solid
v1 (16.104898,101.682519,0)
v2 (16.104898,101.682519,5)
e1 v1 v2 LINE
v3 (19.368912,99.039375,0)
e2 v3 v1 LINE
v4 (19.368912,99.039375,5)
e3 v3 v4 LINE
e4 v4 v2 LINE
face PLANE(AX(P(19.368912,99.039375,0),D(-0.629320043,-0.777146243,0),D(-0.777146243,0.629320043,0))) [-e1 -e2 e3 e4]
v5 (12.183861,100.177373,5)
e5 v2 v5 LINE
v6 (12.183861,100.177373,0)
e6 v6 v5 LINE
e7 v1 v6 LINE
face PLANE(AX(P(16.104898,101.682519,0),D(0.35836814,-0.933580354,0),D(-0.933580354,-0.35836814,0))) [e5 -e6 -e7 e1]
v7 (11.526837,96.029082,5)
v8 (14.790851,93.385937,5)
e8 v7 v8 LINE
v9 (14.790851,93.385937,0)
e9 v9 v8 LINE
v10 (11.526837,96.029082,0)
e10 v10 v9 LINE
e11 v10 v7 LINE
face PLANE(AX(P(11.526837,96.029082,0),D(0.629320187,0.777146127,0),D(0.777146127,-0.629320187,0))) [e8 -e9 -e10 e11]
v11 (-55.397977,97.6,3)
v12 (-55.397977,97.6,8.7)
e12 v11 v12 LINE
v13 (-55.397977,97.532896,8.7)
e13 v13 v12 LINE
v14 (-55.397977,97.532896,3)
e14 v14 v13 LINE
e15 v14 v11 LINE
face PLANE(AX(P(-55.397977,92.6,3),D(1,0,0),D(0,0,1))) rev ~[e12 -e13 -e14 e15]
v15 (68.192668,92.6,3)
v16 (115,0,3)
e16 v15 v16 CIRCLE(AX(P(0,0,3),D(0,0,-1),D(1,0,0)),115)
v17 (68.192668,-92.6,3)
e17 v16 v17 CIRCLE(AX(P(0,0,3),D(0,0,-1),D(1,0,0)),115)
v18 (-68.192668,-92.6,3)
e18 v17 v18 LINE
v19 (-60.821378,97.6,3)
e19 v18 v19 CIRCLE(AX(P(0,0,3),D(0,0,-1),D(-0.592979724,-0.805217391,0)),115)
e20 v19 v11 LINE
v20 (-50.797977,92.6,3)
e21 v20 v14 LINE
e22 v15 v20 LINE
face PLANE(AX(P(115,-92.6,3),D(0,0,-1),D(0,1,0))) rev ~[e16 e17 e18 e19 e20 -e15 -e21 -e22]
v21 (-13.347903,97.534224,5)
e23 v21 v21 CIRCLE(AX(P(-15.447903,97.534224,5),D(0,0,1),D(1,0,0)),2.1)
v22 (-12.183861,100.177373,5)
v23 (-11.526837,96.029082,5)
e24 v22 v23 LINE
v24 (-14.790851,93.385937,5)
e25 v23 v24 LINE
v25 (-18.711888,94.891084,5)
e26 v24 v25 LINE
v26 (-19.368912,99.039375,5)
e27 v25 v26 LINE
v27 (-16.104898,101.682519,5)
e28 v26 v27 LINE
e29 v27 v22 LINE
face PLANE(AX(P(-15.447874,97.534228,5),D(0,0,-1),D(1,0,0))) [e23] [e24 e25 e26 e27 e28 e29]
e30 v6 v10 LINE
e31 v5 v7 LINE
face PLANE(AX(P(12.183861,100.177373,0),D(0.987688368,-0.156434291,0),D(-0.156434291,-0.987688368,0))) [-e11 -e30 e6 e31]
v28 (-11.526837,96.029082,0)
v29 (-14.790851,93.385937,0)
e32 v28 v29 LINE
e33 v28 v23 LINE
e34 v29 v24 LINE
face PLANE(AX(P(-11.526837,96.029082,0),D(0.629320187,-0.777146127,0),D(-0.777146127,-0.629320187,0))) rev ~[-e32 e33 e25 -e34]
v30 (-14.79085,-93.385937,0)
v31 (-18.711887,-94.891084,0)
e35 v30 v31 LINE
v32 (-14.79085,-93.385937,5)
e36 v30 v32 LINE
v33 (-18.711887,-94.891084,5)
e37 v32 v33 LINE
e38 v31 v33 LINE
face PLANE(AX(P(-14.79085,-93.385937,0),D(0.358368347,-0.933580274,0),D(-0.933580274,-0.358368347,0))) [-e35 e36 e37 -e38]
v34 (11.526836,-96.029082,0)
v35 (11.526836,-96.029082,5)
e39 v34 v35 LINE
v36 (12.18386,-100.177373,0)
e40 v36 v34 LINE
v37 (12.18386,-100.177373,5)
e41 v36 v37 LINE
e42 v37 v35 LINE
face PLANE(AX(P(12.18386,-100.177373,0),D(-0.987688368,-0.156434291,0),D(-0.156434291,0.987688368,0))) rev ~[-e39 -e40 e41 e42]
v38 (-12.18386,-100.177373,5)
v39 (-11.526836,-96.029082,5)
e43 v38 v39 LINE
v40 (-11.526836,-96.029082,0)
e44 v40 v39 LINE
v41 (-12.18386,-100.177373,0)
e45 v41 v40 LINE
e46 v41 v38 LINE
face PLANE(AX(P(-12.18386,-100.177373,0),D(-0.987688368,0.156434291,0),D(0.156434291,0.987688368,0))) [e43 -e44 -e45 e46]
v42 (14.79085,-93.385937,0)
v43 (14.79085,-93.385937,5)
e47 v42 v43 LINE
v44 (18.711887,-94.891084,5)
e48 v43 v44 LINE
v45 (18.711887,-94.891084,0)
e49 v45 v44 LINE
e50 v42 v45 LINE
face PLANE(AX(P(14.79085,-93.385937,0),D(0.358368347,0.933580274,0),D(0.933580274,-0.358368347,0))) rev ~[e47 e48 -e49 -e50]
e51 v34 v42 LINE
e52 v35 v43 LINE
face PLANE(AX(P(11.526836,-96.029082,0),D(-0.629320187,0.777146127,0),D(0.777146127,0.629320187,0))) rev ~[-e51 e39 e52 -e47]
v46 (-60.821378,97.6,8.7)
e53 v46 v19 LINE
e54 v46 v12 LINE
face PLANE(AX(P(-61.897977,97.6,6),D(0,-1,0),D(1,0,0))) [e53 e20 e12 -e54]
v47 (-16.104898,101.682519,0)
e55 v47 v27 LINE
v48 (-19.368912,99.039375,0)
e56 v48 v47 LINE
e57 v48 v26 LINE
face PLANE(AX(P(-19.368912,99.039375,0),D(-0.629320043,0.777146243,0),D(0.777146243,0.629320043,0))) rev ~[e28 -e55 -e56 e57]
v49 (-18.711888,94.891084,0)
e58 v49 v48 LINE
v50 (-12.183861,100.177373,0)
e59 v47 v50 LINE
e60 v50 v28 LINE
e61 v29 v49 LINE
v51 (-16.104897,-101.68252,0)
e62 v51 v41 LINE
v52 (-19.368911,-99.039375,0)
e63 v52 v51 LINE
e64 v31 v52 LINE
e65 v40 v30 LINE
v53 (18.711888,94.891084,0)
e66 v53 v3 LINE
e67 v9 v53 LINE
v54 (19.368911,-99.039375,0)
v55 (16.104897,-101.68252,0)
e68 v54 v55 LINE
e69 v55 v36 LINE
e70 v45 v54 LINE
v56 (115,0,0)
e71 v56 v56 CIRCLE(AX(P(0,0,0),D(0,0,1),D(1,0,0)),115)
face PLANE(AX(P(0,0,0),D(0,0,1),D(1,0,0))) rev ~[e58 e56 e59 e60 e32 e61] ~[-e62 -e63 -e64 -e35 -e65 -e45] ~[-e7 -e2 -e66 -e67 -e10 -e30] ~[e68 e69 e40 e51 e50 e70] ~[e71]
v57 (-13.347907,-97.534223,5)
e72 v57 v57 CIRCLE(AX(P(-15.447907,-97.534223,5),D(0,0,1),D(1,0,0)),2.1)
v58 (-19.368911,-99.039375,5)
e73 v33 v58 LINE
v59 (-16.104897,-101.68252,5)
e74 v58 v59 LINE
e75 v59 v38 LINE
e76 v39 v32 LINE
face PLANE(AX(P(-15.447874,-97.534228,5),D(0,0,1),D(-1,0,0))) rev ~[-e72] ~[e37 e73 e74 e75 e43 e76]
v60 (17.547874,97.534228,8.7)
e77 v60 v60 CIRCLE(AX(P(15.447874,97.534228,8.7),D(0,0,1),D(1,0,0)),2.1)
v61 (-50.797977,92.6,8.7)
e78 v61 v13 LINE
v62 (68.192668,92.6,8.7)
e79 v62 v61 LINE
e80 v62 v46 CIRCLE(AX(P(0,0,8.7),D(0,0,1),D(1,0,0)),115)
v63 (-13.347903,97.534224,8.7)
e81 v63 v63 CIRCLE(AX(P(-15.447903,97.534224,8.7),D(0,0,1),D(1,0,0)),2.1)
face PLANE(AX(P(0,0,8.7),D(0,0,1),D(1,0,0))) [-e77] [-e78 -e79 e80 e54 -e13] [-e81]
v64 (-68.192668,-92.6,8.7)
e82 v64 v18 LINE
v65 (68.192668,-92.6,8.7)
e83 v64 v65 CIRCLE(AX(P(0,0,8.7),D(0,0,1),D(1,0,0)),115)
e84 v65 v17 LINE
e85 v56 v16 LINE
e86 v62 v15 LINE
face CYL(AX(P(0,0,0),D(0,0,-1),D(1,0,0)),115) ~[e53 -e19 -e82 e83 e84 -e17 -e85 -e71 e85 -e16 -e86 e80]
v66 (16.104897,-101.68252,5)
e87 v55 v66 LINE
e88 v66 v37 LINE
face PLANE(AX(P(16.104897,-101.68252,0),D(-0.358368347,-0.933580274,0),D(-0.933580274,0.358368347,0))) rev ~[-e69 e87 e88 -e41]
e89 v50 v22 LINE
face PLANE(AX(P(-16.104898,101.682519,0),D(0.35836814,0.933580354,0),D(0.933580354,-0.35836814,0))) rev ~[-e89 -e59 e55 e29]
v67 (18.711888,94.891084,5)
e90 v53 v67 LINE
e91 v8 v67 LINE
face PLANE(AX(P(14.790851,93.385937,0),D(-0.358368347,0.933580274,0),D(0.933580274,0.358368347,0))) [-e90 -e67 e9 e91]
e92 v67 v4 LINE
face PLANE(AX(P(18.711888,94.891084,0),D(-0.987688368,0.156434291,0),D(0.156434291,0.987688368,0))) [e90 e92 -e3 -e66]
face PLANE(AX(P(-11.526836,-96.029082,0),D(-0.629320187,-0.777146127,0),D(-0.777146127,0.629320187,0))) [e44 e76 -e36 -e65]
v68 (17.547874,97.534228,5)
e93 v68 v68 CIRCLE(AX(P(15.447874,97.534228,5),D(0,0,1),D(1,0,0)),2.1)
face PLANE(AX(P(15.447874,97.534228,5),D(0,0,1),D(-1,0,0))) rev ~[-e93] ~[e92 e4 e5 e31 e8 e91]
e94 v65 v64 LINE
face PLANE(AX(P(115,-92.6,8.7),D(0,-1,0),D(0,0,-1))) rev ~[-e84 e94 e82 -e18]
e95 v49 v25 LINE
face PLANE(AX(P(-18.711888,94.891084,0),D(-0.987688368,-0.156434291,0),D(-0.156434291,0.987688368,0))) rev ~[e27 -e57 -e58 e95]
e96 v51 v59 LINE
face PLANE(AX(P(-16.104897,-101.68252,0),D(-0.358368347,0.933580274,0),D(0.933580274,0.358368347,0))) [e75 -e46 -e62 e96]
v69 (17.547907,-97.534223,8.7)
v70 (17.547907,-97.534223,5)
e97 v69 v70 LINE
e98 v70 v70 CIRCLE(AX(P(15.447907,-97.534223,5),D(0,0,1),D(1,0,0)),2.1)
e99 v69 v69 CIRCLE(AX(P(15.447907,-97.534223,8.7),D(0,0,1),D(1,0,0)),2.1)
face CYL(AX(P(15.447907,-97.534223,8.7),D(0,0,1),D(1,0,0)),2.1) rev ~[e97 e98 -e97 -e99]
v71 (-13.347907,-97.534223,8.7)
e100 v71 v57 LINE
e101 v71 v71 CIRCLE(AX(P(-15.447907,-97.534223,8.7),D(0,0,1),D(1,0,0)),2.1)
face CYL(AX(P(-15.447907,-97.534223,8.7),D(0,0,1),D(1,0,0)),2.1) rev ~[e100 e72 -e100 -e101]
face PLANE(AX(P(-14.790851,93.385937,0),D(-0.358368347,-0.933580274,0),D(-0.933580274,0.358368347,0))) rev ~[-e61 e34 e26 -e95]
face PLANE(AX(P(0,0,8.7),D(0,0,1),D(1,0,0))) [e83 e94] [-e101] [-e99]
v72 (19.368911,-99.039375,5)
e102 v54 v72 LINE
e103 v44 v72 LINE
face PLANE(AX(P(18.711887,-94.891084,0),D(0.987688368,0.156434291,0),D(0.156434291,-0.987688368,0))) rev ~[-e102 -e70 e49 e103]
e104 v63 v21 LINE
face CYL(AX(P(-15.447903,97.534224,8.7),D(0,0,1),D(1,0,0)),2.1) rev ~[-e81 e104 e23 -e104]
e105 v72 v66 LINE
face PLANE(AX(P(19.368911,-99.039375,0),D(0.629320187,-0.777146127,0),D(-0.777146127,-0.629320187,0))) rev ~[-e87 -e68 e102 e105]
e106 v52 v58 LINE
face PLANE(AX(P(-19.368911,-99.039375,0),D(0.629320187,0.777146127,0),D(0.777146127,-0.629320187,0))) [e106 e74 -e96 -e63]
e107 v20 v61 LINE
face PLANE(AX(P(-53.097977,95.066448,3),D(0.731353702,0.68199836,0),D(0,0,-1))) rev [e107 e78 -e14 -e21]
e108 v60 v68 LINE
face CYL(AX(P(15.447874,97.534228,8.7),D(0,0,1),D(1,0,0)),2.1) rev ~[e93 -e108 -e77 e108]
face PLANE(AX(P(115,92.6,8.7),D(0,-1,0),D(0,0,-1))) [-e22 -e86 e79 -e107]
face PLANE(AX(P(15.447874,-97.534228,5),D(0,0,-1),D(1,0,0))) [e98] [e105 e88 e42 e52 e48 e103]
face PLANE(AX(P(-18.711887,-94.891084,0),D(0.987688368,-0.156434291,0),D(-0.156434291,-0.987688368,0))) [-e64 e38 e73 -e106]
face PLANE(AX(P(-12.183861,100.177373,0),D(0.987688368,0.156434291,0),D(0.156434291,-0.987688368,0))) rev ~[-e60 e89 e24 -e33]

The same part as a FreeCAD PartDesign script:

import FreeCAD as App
import Part
import Sketcher
from FreeCAD import Vector
Q = App.Units.Quantity


def edges_at(feature, points):
    """Names of the edges that pass closest to the given points."""
    edges = feature.Shape.Edges
    near = lambda p: min(range(len(edges)), key=lambda i: edges[i].distToShape(Part.Vertex(*p))[0])
    return sorted({f"Edge{near(p) + 1}" for p in points})


def add_polygon(sketch, points):
    """Adds a closed chain of lines whose ends are joined by coincident constraints."""
    first, n = sketch.GeometryCount, len(points)
    for a, b in zip(points, points[1:] + points[:1]):
        sketch.addGeometry(Part.LineSegment(App.Vector(*a, 0), App.Vector(*b, 0)), False)
    for i in range(n):
        sketch.addConstraint(Sketcher.Constraint("Coincident", first + i, 2, first + (i + 1) % n, 1))

doc = App.newDocument("Part")
body = doc.addObject("PartDesign::Body", "Body")

# Sketch on XY plane
sketch1 = doc.addObject("Sketcher::SketchObject", "Sketch")
body.addObject(sketch1)
sketch1.AttachmentSupport = (doc.XY_Plane, [""])
sketch1.MapMode = "FlatFace"
sketch1.addGeometry(Part.Circle(Vector(0, 0, 0), Vector(0, 0, 1), 115), False)
sketch1.addConstraint([
    Sketcher.Constraint("Coincident", 0, 3, -1, 1),
    Sketcher.Constraint("Diameter", 0, 230.0),
])
pad1 = doc.addObject("PartDesign::Pad", "Pad")
body.addObject(pad1)
pad1.Profile = sketch1
pad1.Length = 8.7

# Sketch on YZ plane
sketch2 = doc.addObject("Sketcher::SketchObject", "Sketch001")
body.addObject(sketch2)
sketch2.AttachmentSupport = (doc.YZ_Plane, [""])
sketch2.MapMode = "FlatFace"
sketch2.AttachmentOffset = App.Placement(Vector(0, 0, 115), App.Rotation())
add_polygon(sketch2, [(92.6, 8.7), (-92.6, 8.7), (-92.6, 3), (92.6, 3)])  # lines 0-3
sketch2.addConstraint([
    Sketcher.Constraint("Horizontal", 0),
    Sketcher.Constraint("Vertical", 1),
    Sketcher.Constraint("Horizontal", 2),
    Sketcher.Constraint("Vertical", 3),
    Sketcher.Constraint("DistanceX", 0, 2, 0, 1, 185.2),
    Sketcher.Constraint("DistanceY", 1, 2, 1, 1, 5.7),
    Sketcher.Constraint("DistanceY", -1, 1, 1, 2, 3.0),
    Sketcher.Constraint("DistanceX", 0, 2, -1, 1, 92.6),
])
pocket1 = doc.addObject("PartDesign::Pocket", "Pocket")
body.addObject(pocket1)
pocket1.Profile = sketch2
pocket1.Length = 257

# Sketch on XZ plane
sketch3 = doc.addObject("Sketcher::SketchObject", "Sketch002")
body.addObject(sketch3)
sketch3.AttachmentSupport = (doc.XZ_Plane, [""])
sketch3.MapMode = "FlatFace"
sketch3.AttachmentOffset = App.Placement(Vector(0, 0, -92.6), App.Rotation())
add_polygon(sketch3, [(-68.397977, 9), (-68.397977, 3), (-55.397977, 3), (-55.397977, 9)])  # lines 0-3
sketch3.addConstraint([
    Sketcher.Constraint("Vertical", 0),
    Sketcher.Constraint("Horizontal", 1),
    Sketcher.Constraint("Vertical", 2),
    Sketcher.Constraint("Horizontal", 3),
    Sketcher.Constraint("DistanceX", 1, 1, 1, 2, 13.0),
    Sketcher.Constraint("DistanceY", 0, 2, 0, 1, 6.0),
    Sketcher.Constraint("DistanceY", -1, 1, 0, 2, 3.0),
    Sketcher.Constraint("DistanceX", 0, 2, -1, 1, 68.397977),
])
pocket2 = doc.addObject("PartDesign::Pocket", "Pocket001")
body.addObject(pocket2)
pocket2.Profile = sketch3
pocket2.Length = 5
doc.recompute()

chamfer = doc.addObject("PartDesign::Chamfer", "Chamfer")
body.addObject(chamfer)
chamfer.Base = (pocket2, edges_at(pocket2, [(-55.398, 92.6, 5.85)]))
chamfer.ChamferType = "Distance and Angle"
chamfer.Size = 4.6
chamfer.Angle = 47

# Sketch on XY plane
sketch4 = doc.addObject("Sketcher::SketchObject", "Sketch003")
body.addObject(sketch4)
sketch4.AttachmentSupport = (doc.XY_Plane, [""])
sketch4.MapMode = "FlatFace"
sketch4.AttachmentOffset = App.Placement(Vector(0, 0, 8.7), App.Rotation())
sketch4.addGeometry([
    Part.Circle(Vector(15.447874, 97.534228, 0), Vector(0, 0, 1), 2.1),
    Part.Circle(Vector(-15.447903, 97.534224, 0), Vector(0, 0, 1), 2.1),
], False)
sketch4.addConstraint([
    Sketcher.Constraint("Equal", 0, 1),
    Sketcher.Constraint("Diameter", 0, 4.2),
    Sketcher.Constraint("DistanceY", -1, 1, 0, 3, 97.534228),
    Sketcher.Constraint("DistanceX", -1, 1, 0, 3, 15.447874),
    Sketcher.Constraint("DistanceX", 1, 3, -1, 1, 15.447903),
    Sketcher.Constraint("DistanceY", -1, 1, 1, 3, 97.534224),
])
pocket3 = doc.addObject("PartDesign::Pocket", "Pocket002")
body.addObject(pocket3)
pocket3.Profile = sketch4
pocket3.Length = 10

# Sketch on XY plane
sketch5 = doc.addObject("Sketcher::SketchObject", "Sketch004")
body.addObject(sketch5)
sketch5.AttachmentSupport = (doc.XY_Plane, [""])
sketch5.MapMode = "FlatFace"
sketch5.AttachmentOffset = App.Placement(Vector(0, 0, 8.7), App.Rotation())
sketch5.addGeometry([
    Part.Circle(Vector(-15.447907, -97.534223, 0), Vector(0, 0, 1), 2.1),
    Part.Circle(Vector(15.447907, -97.534223, 0), Vector(0, 0, 1), 2.1),
], False)
sketch5.addConstraint([
    Sketcher.Constraint("Equal", 0, 1),
    Sketcher.Constraint("Symmetric", 0, 3, 1, 3, -2),
    Sketcher.Constraint("Diameter", 0, 4.2),
    Sketcher.Constraint("DistanceX", 0, 3, -1, 1, 15.447907),
    Sketcher.Constraint("DistanceY", 0, 3, -1, 1, 97.534223),
])
pocket4 = doc.addObject("PartDesign::Pocket", "Pocket003")
body.addObject(pocket4)
pocket4.Profile = sketch5
pocket4.Length = 10

# Sketch on XY plane
sketch6 = doc.addObject("Sketcher::SketchObject", "Sketch005")
body.addObject(sketch6)
sketch6.AttachmentSupport = (doc.XY_Plane, [""])
sketch6.MapMode = "FlatFace"
add_polygon(sketch6, [(14.79085, -93.385937), (18.711887, -94.891084), (19.368911, -99.039375), (16.104897, -101.68252), (12.18386, -100.177373), (11.526836, -96.029082)])  # lines 0-5
add_polygon(sketch6, [(18.711888, 94.891084), (14.790851, 93.385937), (11.526837, 96.029082), (12.183861, 100.177373), (16.104898, 101.682519), (19.368912, 99.039375)])  # lines 6-11
add_polygon(sketch6, [(-18.711887, -94.891084), (-14.79085, -93.385937), (-11.526836, -96.029082), (-12.18386, -100.177373), (-16.104897, -101.68252), (-19.368911, -99.039375)])  # lines 12-17
add_polygon(sketch6, [(-14.790851, 93.385937), (-18.711888, 94.891084), (-19.368912, 99.039375), (-16.104898, 101.682519), (-12.183861, 100.177373), (-11.526837, 96.029082)])  # lines 18-23
sketch6.addConstraint([
    Sketcher.Constraint("Symmetric", 6, 2, 12, 2, -1, 1),
    Sketcher.Constraint("Symmetric", 7, 2, 13, 2, -1, 1),
    Sketcher.Constraint("Symmetric", 8, 2, 14, 2, -1, 1),
    Sketcher.Constraint("Symmetric", 9, 2, 15, 2, -1, 1),
    Sketcher.Constraint("Symmetric", 10, 2, 16, 2, -1, 1),
    Sketcher.Constraint("Symmetric", 11, 2, 17, 2, -1, 1),
    Sketcher.Constraint("Symmetric", 0, 2, 18, 2, -1, 1),
    Sketcher.Constraint("Symmetric", 1, 2, 19, 2, -1, 1),
    Sketcher.Constraint("Symmetric", 2, 2, 20, 2, -1, 1),
    Sketcher.Constraint("Symmetric", 3, 2, 21, 2, -1, 1),
    Sketcher.Constraint("Symmetric", 4, 2, 22, 2, -1, 1),
    Sketcher.Constraint("Symmetric", 5, 2, 23, 2, -1, 1),
    Sketcher.Constraint("Symmetric", 5, 2, 12, 2, -2),
    Sketcher.Constraint("Symmetric", 4, 2, 13, 2, -2),
    Sketcher.Constraint("Symmetric", 3, 2, 14, 2, -2),
    Sketcher.Constraint("Symmetric", 2, 2, 15, 2, -2),
    Sketcher.Constraint("Symmetric", 1, 2, 16, 2, -2),
    Sketcher.Constraint("Symmetric", 0, 2, 17, 2, -2),
    Sketcher.Constraint("Parallel", 0, 3),
    Sketcher.Constraint("Parallel", 1, 4),
    Sketcher.Constraint("Parallel", 2, 5),
    Sketcher.Constraint("Equal", 0, 1),
    Sketcher.Constraint("Equal", 1, 2),
    Sketcher.Constraint("Equal", 2, 3),
    Sketcher.Constraint("Angle", 1, Q("-81.00001 deg")),
    Sketcher.Constraint("Angle", 2, Q("-141.000015 deg")),
    Sketcher.Constraint("Angle", 9, Q("21.000012 deg")),
    Sketcher.Constraint("Distance", 0, 4.2),
    Sketcher.Constraint("DistanceX", 12, 2, 5, 2, 29.5817),
    Sketcher.Constraint("DistanceY", 2, 2, -1, 1, 101.68252),
])
pocket5 = doc.addObject("PartDesign::Pocket", "Pocket004")
body.addObject(pocket5)
pocket5.Profile = sketch6
pocket5.Length = 5
pocket5.Reversed = True

doc.recompute()
